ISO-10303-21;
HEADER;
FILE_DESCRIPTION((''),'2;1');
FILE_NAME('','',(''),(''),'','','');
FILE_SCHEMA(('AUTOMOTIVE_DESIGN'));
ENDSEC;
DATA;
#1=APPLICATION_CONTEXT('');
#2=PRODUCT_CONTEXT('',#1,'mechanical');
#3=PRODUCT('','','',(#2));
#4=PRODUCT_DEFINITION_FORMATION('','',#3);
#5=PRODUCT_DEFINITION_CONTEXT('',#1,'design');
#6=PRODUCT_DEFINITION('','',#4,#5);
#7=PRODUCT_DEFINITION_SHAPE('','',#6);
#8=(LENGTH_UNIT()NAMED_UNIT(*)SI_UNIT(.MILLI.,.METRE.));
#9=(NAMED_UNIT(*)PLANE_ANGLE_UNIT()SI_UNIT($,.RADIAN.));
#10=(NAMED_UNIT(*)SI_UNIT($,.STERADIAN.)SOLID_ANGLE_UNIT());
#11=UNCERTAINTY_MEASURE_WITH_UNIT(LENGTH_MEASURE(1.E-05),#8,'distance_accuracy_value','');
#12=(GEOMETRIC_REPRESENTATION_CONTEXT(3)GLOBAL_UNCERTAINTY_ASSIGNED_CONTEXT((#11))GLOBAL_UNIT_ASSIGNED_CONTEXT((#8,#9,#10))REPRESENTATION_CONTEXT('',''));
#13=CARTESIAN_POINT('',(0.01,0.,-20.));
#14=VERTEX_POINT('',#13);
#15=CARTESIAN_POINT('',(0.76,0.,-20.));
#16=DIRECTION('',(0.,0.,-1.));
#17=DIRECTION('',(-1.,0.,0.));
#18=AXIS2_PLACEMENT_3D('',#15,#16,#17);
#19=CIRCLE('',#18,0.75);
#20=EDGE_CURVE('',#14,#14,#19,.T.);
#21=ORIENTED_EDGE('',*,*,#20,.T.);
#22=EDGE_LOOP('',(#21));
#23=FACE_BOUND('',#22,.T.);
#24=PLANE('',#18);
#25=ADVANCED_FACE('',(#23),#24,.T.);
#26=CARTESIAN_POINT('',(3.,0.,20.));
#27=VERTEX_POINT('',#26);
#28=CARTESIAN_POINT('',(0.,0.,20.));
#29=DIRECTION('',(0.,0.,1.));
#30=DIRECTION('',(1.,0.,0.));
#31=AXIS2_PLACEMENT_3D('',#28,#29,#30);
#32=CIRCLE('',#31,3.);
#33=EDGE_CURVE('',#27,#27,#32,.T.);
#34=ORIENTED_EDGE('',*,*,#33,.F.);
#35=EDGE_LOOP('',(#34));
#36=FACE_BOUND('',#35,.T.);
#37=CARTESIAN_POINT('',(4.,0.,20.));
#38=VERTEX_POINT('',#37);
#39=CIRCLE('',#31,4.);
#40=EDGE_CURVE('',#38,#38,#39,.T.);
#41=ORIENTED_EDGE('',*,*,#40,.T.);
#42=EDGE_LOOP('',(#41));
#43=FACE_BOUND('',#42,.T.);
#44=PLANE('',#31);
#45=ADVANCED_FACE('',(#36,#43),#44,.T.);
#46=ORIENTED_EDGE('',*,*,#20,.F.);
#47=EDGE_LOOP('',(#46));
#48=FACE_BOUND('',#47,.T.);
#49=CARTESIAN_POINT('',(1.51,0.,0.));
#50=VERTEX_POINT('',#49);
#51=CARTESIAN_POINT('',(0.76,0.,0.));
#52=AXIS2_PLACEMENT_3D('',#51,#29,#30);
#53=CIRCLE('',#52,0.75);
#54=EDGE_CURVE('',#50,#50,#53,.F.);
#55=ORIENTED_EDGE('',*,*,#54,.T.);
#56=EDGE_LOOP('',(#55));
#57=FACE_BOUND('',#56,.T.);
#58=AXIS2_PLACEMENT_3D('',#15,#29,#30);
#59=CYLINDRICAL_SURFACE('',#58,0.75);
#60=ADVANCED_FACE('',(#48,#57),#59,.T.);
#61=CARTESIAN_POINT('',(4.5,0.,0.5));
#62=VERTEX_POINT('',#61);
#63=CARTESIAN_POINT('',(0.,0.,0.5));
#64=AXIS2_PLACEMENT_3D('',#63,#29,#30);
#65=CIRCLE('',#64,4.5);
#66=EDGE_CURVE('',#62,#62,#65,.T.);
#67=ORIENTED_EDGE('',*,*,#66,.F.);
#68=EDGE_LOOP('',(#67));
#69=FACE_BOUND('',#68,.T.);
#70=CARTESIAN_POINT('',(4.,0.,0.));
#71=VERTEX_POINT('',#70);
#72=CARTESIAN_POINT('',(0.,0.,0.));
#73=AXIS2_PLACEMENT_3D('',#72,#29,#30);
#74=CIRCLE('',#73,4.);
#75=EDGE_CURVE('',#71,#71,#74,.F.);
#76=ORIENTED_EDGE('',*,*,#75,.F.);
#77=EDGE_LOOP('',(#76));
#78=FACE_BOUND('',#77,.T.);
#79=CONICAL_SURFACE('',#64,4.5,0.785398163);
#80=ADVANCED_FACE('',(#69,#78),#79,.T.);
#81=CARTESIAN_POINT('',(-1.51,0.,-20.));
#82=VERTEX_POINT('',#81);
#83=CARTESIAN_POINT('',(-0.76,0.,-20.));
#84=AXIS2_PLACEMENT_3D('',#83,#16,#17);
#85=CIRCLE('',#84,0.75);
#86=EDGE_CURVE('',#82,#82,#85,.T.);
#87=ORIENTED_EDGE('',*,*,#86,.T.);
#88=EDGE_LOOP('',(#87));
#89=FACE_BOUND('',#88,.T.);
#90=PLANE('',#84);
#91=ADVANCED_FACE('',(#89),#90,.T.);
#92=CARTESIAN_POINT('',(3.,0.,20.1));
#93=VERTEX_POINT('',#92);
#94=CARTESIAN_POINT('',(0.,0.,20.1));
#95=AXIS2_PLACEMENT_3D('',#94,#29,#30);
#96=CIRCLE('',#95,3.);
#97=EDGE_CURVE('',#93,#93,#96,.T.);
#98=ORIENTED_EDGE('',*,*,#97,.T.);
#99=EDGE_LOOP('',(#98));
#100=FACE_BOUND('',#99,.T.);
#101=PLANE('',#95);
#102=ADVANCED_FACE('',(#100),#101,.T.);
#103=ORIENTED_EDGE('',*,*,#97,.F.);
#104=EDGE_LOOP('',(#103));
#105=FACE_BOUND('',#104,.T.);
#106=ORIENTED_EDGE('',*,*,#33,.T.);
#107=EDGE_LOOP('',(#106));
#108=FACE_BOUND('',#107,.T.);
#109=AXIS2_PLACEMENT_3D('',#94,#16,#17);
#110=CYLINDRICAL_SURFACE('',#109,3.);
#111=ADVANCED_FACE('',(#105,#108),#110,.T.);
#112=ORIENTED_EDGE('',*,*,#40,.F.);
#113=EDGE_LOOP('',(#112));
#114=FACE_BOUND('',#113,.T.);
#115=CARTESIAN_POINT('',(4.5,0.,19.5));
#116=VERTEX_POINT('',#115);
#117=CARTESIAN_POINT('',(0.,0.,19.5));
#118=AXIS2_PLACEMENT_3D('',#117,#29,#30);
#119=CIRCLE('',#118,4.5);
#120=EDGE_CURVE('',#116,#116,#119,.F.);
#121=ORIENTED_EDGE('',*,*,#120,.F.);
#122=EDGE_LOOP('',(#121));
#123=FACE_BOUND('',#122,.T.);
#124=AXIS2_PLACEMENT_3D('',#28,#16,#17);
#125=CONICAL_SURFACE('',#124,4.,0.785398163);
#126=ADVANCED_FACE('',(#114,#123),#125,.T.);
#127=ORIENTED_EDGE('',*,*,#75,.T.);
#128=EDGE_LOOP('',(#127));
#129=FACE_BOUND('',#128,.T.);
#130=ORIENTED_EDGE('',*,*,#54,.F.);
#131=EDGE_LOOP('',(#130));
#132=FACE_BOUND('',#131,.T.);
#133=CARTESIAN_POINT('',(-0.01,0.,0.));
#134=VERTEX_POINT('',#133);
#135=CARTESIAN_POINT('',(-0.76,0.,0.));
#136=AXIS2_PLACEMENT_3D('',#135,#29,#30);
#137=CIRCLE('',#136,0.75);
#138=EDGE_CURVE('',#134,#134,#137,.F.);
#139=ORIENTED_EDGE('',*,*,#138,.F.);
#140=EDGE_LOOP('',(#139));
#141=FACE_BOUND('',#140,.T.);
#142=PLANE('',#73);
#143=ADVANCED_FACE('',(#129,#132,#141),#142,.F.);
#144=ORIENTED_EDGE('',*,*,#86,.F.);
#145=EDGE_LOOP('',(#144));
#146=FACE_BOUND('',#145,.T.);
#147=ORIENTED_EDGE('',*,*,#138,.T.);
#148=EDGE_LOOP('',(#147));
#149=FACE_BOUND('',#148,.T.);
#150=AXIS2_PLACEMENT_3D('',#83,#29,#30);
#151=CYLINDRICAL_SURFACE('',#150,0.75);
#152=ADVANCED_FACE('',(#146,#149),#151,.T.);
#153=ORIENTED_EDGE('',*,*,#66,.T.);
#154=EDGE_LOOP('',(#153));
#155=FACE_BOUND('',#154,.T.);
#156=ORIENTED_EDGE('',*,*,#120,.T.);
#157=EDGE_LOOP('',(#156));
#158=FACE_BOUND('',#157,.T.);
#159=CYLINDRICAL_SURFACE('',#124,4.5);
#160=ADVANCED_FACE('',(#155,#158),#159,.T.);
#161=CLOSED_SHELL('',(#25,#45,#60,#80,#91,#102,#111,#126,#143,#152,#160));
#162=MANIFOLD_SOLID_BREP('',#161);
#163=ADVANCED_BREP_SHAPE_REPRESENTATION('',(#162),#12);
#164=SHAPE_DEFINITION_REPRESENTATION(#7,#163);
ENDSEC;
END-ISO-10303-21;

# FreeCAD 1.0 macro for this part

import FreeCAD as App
import Part
import Sketcher


def edges_at(feature, points):
    """Names of the edges that pass closest to the given points."""
    edges = feature.Shape.Edges
    near = lambda p: min(range(len(edges)), key=lambda i: edges[i].distToShape(Part.Vertex(*p))[0])
    return sorted({f"Edge{near(p) + 1}" for p in points})

doc = App.newDocument("Part")
body = doc.addObject("PartDesign::Body", "Body")

sketch1 = body.newObject("Sketcher::SketchObject", "Sketch")
sketch1.AttachmentSupport = (doc.getObject("XY_Plane"), [""])
sketch1.MapMode = "FlatFace"
sketch1.addGeometry(Part.Circle(App.Vector(0, 0, 0), App.Vector(0, 0, 1), 4.5), False)
sketch1.addConstraint([
    Sketcher.Constraint("Coincident", 0, 3, -1, 1),
    Sketcher.Constraint("Diameter", 0, 9.0),
])
pad1 = body.newObject("PartDesign::Pad", "Pad")
pad1.Profile = sketch1
pad1.Length = 20
doc.recompute()

chamfer = body.newObject("PartDesign::Chamfer", "Chamfer")
chamfer.Base = (pad1, edges_at(pad1, [(-4.5, 0, 0), (-4.5, 0, 20)]))
chamfer.Size = 0.5

sketch2 = body.newObject("Sketcher::SketchObject", "Sketch001")
sketch2.AttachmentSupport = (doc.getObject("XY_Plane"), [""])
sketch2.MapMode = "FlatFace"
sketch2.AttachmentOffset = App.Placement(App.Vector(0, 0, 20), App.Rotation())
sketch2.addGeometry(Part.Circle(App.Vector(0, 0, 0), App.Vector(0, 0, 1), 3), False)
sketch2.addConstraint([
    Sketcher.Constraint("Coincident", 0, 3, -1, 1),
    Sketcher.Constraint("Diameter", 0, 6.0),
])
pad2 = body.newObject("PartDesign::Pad", "Pad001")
pad2.Profile = sketch2
pad2.Length = 0.1

sketch3 = body.newObject("Sketcher::SketchObject", "Sketch002")
sketch3.AttachmentSupport = (doc.getObject("XY_Plane"), [""])
sketch3.MapMode = "FlatFace"
sketch3.addGeometry([
    Part.Circle(App.Vector(-0.76, 0, 0), App.Vector(0, 0, 1), 0.75),
    Part.Circle(App.Vector(0.76, 0, 0), App.Vector(0, 0, 1), 0.75),
], False)
sketch3.addConstraint([
    Sketcher.Constraint("Equal", 0, 1),
    Sketcher.Constraint("Symmetric", 0, 3, 1, 3, -1, 1),
    Sketcher.Constraint("PointOnObject", 0, 3, -1),
    Sketcher.Constraint("Diameter", 0, 1.5),
    Sketcher.Constraint("DistanceX", 0, 3, -1, 1, 0.76),
])
pad3 = body.newObject("PartDesign::Pad", "Pad002")
pad3.Profile = sketch3
pad3.Length = 20
pad3.Reversed = True

doc.recompute()
